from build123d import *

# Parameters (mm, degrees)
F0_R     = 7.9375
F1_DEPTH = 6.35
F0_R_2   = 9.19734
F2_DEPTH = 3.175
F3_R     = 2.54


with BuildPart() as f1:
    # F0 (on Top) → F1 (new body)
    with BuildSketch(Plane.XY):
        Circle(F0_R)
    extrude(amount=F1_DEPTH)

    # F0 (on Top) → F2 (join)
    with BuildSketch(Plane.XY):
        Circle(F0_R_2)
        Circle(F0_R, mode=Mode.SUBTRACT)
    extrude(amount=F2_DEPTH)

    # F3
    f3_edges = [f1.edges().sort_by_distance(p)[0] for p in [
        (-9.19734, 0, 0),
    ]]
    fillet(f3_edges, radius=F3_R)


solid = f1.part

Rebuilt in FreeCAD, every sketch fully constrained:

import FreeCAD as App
import Part
import Sketcher

V = App.Vector
Q = App.Units.Quantity


def edges_at(feature, points):
    """Names of the edges that pass closest to the given points."""
    edges = feature.Shape.Edges
    near = lambda p: min(range(len(edges)), key=lambda i: edges[i].distToShape(Part.Vertex(*p))[0])
    return sorted({f"Edge{near(p) + 1}" for p in points})

doc = App.newDocument("Part")
body = doc.addObject("PartDesign::Body", "Body")

sketch1 = body.newObject("Sketcher::SketchObject", "Sketch")
sketch1.AttachmentSupport = (doc.getObject("XY_Plane"), [""])
sketch1.MapMode = "FlatFace"
sketch1.addGeometry(Part.Circle(V(0, 0, 0), V(0, 0, 1), 8), False)
sketch1.addConstraint([
    Sketcher.Constraint("Coincident", 0, 3, -1, 1),
    Sketcher.Constraint("Diameter", 0, Q("0.625 in")),
])
pad1 = body.newObject("PartDesign::Pad", "Pad")
pad1.Profile = sketch1
pad1.Length = Q("0.25 in")

sketch2 = body.newObject("Sketcher::SketchObject", "Sketch001")
sketch2.AttachmentSupport = (doc.getObject("XY_Plane"), [""])
sketch2.MapMode = "FlatFace"
sketch2.addGeometry([
    Part.Circle(V(0, 0, 0), V(0, 0, 1), 9),
    Part.Circle(V(0, 0, 0), V(0, 0, 1), 8),
], False)
sketch2.addConstraint([
    Sketcher.Constraint("Coincident", 0, 3, -1, 1),
    Sketcher.Constraint("Coincident", 1, 3, -1, 1),
    Sketcher.Constraint("Diameter", 1, Q("0.625 in")),
    Sketcher.Constraint("Diameter", 0, Q("0.7242 in")),
])
pad2 = body.newObject("PartDesign::Pad", "Pad001")
pad2.Profile = sketch2
pad2.Length = Q("0.125 in")
doc.recompute()

fillet = body.newObject("PartDesign::Fillet", "Fillet")
fillet.Base = (pad2, edges_at(pad2, [(-9.197, 0, 0)]))
fillet.Radius = Q("0.1 in")

doc.recompute()
